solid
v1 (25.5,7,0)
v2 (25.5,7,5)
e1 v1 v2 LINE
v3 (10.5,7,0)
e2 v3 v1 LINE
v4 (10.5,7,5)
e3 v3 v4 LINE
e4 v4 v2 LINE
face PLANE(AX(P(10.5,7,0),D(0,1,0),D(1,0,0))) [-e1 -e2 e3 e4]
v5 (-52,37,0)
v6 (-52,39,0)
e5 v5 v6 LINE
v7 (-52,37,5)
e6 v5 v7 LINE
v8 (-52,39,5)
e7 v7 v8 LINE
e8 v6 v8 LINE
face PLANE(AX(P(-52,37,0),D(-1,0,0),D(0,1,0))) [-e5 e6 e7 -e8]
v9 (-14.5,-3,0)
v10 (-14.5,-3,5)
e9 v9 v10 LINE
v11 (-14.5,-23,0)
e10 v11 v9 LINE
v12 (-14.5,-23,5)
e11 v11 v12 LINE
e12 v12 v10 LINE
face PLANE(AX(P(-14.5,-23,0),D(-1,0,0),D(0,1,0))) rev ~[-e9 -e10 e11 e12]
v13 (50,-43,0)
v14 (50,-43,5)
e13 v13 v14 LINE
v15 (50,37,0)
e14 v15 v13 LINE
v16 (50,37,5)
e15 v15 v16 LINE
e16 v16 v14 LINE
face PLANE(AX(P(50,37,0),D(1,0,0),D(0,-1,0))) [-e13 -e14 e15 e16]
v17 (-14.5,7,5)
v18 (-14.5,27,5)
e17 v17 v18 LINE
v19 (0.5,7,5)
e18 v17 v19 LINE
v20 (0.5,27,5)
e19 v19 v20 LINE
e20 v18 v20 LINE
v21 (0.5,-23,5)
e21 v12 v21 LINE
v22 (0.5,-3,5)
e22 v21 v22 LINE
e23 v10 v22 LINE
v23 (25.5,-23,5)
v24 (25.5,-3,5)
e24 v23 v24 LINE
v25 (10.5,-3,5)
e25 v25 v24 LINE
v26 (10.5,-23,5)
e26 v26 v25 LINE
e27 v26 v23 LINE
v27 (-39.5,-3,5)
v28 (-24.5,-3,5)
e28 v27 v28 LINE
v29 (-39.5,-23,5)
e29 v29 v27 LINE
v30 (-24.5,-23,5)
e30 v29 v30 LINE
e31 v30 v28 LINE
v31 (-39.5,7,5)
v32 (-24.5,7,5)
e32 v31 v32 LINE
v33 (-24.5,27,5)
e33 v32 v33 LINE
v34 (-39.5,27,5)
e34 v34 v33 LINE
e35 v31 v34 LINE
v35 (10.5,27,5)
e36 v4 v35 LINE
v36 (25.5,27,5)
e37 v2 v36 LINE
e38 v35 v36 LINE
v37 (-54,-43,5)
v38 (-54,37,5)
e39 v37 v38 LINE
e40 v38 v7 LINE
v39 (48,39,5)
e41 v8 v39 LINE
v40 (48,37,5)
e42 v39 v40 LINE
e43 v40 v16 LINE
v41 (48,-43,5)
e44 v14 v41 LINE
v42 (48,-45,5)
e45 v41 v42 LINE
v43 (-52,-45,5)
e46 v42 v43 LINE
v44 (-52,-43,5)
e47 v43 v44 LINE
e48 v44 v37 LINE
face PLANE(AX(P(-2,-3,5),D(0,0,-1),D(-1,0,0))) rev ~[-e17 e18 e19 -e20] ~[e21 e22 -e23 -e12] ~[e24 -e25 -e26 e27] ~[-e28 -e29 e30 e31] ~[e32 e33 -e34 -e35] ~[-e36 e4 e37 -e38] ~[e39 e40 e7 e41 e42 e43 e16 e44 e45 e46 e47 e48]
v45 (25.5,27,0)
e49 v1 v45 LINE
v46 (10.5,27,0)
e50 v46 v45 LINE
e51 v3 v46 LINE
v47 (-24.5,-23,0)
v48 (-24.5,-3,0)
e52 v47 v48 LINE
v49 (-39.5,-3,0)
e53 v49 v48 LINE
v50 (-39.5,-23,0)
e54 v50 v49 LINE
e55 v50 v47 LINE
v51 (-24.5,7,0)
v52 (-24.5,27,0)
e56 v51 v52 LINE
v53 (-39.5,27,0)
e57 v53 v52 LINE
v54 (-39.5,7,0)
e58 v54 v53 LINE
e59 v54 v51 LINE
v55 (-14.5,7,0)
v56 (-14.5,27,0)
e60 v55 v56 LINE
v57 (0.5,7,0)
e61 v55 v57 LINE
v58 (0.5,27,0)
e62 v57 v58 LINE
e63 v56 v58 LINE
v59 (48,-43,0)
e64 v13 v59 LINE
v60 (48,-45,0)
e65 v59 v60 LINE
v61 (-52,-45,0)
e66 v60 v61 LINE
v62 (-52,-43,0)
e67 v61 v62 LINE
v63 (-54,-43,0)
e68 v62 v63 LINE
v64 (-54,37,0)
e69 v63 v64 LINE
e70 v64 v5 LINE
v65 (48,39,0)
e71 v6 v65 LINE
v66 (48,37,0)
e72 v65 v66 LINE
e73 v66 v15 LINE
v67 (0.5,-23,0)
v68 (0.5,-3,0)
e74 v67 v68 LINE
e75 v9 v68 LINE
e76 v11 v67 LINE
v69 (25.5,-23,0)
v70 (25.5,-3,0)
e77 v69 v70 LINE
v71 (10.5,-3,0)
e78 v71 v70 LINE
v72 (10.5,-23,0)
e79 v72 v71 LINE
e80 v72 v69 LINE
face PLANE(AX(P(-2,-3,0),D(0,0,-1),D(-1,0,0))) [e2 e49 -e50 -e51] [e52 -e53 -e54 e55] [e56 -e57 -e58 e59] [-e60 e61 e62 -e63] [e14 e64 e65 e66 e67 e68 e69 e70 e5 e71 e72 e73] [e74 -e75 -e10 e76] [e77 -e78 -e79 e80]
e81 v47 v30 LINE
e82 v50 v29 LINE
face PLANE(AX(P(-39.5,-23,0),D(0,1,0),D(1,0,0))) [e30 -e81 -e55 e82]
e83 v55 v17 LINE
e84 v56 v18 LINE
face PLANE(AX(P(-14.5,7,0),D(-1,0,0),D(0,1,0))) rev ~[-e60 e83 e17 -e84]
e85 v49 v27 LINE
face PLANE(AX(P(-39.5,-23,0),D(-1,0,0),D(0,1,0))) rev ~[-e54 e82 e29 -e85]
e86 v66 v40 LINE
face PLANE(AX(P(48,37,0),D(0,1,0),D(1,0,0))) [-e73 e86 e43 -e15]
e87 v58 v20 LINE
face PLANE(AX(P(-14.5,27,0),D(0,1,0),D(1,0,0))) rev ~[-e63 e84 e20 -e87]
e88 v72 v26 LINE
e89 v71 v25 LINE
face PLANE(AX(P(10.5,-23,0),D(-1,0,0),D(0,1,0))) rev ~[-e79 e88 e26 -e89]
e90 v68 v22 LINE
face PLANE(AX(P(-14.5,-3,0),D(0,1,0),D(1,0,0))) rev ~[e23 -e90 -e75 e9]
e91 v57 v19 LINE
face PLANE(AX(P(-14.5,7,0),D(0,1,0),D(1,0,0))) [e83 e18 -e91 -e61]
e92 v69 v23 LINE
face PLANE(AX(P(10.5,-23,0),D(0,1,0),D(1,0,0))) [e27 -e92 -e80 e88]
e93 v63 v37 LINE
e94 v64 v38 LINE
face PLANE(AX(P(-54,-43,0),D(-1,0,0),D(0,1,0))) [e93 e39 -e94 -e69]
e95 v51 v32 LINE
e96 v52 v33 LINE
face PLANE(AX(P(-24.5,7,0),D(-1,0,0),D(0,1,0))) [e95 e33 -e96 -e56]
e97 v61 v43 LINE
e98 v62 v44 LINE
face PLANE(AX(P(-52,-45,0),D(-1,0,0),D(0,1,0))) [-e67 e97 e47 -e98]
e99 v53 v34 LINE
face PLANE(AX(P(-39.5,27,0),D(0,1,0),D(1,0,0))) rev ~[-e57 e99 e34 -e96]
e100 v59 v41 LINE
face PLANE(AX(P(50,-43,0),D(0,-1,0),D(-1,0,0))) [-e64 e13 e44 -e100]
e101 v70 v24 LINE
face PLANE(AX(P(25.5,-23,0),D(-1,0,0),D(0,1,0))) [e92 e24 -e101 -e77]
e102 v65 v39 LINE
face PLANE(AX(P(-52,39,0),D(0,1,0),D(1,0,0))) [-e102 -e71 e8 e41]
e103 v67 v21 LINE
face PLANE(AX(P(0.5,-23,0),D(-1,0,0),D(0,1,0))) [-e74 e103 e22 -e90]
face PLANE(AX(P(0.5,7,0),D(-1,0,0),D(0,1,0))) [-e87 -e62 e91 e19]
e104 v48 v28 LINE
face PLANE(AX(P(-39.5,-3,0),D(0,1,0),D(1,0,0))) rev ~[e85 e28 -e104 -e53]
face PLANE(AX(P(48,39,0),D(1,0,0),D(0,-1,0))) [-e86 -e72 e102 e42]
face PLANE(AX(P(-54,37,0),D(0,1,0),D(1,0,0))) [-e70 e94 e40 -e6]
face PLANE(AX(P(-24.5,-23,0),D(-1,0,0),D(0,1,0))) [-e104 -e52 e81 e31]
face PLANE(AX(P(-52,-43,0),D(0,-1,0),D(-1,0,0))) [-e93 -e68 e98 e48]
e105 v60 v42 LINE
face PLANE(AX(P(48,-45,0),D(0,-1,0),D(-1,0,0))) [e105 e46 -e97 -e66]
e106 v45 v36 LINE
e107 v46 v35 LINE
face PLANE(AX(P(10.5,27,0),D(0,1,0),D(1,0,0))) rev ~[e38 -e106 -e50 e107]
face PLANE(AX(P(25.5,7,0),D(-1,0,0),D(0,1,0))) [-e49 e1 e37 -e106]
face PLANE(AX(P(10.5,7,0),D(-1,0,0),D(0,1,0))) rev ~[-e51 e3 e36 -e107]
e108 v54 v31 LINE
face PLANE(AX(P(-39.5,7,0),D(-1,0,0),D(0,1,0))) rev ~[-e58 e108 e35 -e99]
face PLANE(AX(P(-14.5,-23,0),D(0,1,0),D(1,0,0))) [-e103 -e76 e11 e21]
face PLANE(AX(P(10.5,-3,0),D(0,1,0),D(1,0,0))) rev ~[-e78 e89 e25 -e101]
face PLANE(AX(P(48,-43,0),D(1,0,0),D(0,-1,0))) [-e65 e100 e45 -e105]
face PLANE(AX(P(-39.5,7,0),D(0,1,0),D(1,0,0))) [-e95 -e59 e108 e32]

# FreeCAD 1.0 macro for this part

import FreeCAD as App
import Part
import Sketcher

V = App.Vector
Q = App.Units.Quantity


def add_polygon(sketch, points):
    """Adds a closed chain of lines whose ends are joined by coincident constraints."""
    first, n = sketch.GeometryCount, len(points)
    for a, b in zip(points, points[1:] + points[:1]):
        sketch.addGeometry(Part.LineSegment(App.Vector(*a, 0), App.Vector(*b, 0)), False)
    for i in range(n):
        sketch.addConstraint(Sketcher.Constraint("Coincident", first + i, 2, first + (i + 1) % n, 1))

doc = App.newDocument("Part")
body = doc.addObject("PartDesign::Body", "Body")

# Sketch on XY plane
sketch1 = body.newObject("Sketcher::SketchObject", "Sketch")
sketch1.AttachmentSupport = (doc.getObject("XY_Plane"), [""])
sketch1.MapMode = "FlatFace"
add_polygon(sketch1, [(-54, 37), (-54, -43), (-52, -43), (-52, -45), (48, -45), (48, -43), (50, -43), (50, 37), (48, 37), (48, 39), (-52, 39), (-52, 37)])  # lines 0-11
add_polygon(sketch1, [(10.5, -23), (10.5, -3), (25.5, -3), (25.5, -23)])  # lines 12-15
add_polygon(sketch1, [(-14.5, -23), (-14.5, -3), (0.5, -3), (0.5, -23)])  # lines 16-19
add_polygon(sketch1, [(-39.5, -23), (-39.5, -3), (-24.5, -3), (-24.5, -23)])  # lines 20-23
add_polygon(sketch1, [(10.5, 7), (10.5, 27), (25.5, 27), (25.5, 7)])  # lines 24-27
add_polygon(sketch1, [(-14.5, 7), (-14.5, 27), (0.5, 27), (0.5, 7)])  # lines 28-31
add_polygon(sketch1, [(-39.5, 7), (-39.5, 27), (-24.5, 27), (-24.5, 7)])  # lines 32-35
sketch1.addConstraint(Sketcher.Constraint("Vertical", 0))
sketch1.addConstraint(Sketcher.Constraint("Horizontal", 1))
sketch1.addConstraint(Sketcher.Constraint("Vertical", 2))
sketch1.addConstraint(Sketcher.Constraint("Horizontal", 3))
sketch1.addConstraint(Sketcher.Constraint("Vertical", 4))
sketch1.addConstraint(Sketcher.Constraint("Horizontal", 5))
sketch1.addConstraint(Sketcher.Constraint("Vertical", 6))
sketch1.addConstraint(Sketcher.Constraint("Horizontal", 7))
sketch1.addConstraint(Sketcher.Constraint("Vertical", 8))
sketch1.addConstraint(Sketcher.Constraint("Horizontal", 9))
sketch1.addConstraint(Sketcher.Constraint("Vertical", 10))
sketch1.addConstraint(Sketcher.Constraint("Horizontal", 11))
sketch1.addConstraint(Sketcher.Constraint("Vertical", 12))
sketch1.addConstraint(Sketcher.Constraint("Horizontal", 13))
sketch1.addConstraint(Sketcher.Constraint("Vertical", 14))
sketch1.addConstraint(Sketcher.Constraint("Horizontal", 15))
sketch1.addConstraint(Sketcher.Constraint("Vertical", 16))
sketch1.addConstraint(Sketcher.Constraint("Horizontal", 17))
sketch1.addConstraint(Sketcher.Constraint("Vertical", 18))
sketch1.addConstraint(Sketcher.Constraint("Horizontal", 19))
sketch1.addConstraint(Sketcher.Constraint("Vertical", 20))
sketch1.addConstraint(Sketcher.Constraint("Horizontal", 21))
sketch1.addConstraint(Sketcher.Constraint("Vertical", 22))
sketch1.addConstraint(Sketcher.Constraint("Horizontal", 23))
sketch1.addConstraint(Sketcher.Constraint("Vertical", 24))
sketch1.addConstraint(Sketcher.Constraint("Horizontal", 25))
sketch1.addConstraint(Sketcher.Constraint("Vertical", 26))
sketch1.addConstraint(Sketcher.Constraint("Horizontal", 27))
sketch1.addConstraint(Sketcher.Constraint("Vertical", 28))
sketch1.addConstraint(Sketcher.Constraint("Horizontal", 29))
sketch1.addConstraint(Sketcher.Constraint("Vertical", 30))
sketch1.addConstraint(Sketcher.Constraint("Horizontal", 31))
sketch1.addConstraint(Sketcher.Constraint("Vertical", 32))
sketch1.addConstraint(Sketcher.Constraint("Horizontal", 33))
sketch1.addConstraint(Sketcher.Constraint("Vertical", 34))
sketch1.addConstraint(Sketcher.Constraint("Horizontal", 35))
sketch1.addConstraint(Sketcher.Constraint("Horizontal", 1, 2, 4, 2))
sketch1.addConstraint(Sketcher.Constraint("Horizontal", 7, 2, 10, 2))
sketch1.addConstraint(Sketcher.Constraint("Horizontal", 13, 2, 16, 2))
sketch1.addConstraint(Sketcher.Constraint("Horizontal", 15, 2, 18, 2))
sketch1.addConstraint(Sketcher.Constraint("Horizontal", 17, 2, 20, 2))
sketch1.addConstraint(Sketcher.Constraint("Horizontal", 19, 2, 22, 2))
sketch1.addConstraint(Sketcher.Constraint("Horizontal", 25, 2, 28, 2))
sketch1.addConstraint(Sketcher.Constraint("Horizontal", 27, 2, 30, 2))
sketch1.addConstraint(Sketcher.Constraint("Horizontal", 29, 2, 32, 2))
sketch1.addConstraint(Sketcher.Constraint("Horizontal", 31, 2, 34, 2))
sketch1.addConstraint(Sketcher.Constraint("Vertical", 4, 2, 7, 2))
sketch1.addConstraint(Sketcher.Constraint("Vertical", 2, 2, 9, 2))
sketch1.addConstraint(Sketcher.Constraint("Vertical", 15, 2, 24, 2))
sketch1.addConstraint(Sketcher.Constraint("Vertical", 14, 2, 25, 2))
sketch1.addConstraint(Sketcher.Constraint("Vertical", 19, 2, 28, 2))
sketch1.addConstraint(Sketcher.Constraint("Vertical", 18, 2, 29, 2))
sketch1.addConstraint(Sketcher.Constraint("Vertical", 23, 2, 32, 2))
sketch1.addConstraint(Sketcher.Constraint("Vertical", 22, 2, 33, 2))
sketch1.addConstraint(Sketcher.Constraint("Equal", 1, 5))
sketch1.addConstraint(Sketcher.Constraint("Equal", 15, 17))
sketch1.addConstraint(Sketcher.Constraint("Equal", 19, 21))
sketch1.addConstraint(Sketcher.Constraint("Equal", 11, 2))
sketch1.addConstraint(Sketcher.Constraint("Equal", 4, 8))
sketch1.addConstraint(Sketcher.Constraint("Equal", 22, 24))
sketch1.addConstraint(Sketcher.Constraint("DistanceX", 1, 1, 1, 2, Q("2 mm")))
sketch1.addConstraint(Sketcher.Constraint("DistanceX", 3, 1, 3, 2, Q("100 mm")))
sketch1.addConstraint(Sketcher.Constraint("DistanceX", 13, 1, 13, 2, Q("15 mm")))
sketch1.addConstraint(Sketcher.Constraint("DistanceY", 0, 2, 0, 1, Q("80 mm")))
sketch1.addConstraint(Sketcher.Constraint("DistanceY", 12, 1, 12, 2, Q("20 mm")))
sketch1.addConstraint(Sketcher.Constraint("DistanceX", 0, 2, -1, 1, Q("54 mm")))
sketch1.addConstraint(Sketcher.Constraint("DistanceY", 0, 2, -1, 1, Q("43 mm")))
sketch1.addConstraint(Sketcher.Constraint("DistanceY", 12, 2, -1, 1, Q("3 mm")))
sketch1.addConstraint(Sketcher.Constraint("DistanceY", -1, 1, 24, 2, Q("27 mm")))
sketch1.addConstraint(Sketcher.Constraint("DistanceX", 16, 2, 12, 2, Q("25 mm")))
sketch1.addConstraint(Sketcher.Constraint("DistanceX", 20, 2, 16, 2, Q("25 mm")))
sketch1.addConstraint(Sketcher.Constraint("DistanceX", -1, 1, 12, 2, Q("10.5 mm")))
pad1 = body.newObject("PartDesign::Pad", "Pad")
pad1.Profile = sketch1
pad1.Length = 5

doc.recompute()
